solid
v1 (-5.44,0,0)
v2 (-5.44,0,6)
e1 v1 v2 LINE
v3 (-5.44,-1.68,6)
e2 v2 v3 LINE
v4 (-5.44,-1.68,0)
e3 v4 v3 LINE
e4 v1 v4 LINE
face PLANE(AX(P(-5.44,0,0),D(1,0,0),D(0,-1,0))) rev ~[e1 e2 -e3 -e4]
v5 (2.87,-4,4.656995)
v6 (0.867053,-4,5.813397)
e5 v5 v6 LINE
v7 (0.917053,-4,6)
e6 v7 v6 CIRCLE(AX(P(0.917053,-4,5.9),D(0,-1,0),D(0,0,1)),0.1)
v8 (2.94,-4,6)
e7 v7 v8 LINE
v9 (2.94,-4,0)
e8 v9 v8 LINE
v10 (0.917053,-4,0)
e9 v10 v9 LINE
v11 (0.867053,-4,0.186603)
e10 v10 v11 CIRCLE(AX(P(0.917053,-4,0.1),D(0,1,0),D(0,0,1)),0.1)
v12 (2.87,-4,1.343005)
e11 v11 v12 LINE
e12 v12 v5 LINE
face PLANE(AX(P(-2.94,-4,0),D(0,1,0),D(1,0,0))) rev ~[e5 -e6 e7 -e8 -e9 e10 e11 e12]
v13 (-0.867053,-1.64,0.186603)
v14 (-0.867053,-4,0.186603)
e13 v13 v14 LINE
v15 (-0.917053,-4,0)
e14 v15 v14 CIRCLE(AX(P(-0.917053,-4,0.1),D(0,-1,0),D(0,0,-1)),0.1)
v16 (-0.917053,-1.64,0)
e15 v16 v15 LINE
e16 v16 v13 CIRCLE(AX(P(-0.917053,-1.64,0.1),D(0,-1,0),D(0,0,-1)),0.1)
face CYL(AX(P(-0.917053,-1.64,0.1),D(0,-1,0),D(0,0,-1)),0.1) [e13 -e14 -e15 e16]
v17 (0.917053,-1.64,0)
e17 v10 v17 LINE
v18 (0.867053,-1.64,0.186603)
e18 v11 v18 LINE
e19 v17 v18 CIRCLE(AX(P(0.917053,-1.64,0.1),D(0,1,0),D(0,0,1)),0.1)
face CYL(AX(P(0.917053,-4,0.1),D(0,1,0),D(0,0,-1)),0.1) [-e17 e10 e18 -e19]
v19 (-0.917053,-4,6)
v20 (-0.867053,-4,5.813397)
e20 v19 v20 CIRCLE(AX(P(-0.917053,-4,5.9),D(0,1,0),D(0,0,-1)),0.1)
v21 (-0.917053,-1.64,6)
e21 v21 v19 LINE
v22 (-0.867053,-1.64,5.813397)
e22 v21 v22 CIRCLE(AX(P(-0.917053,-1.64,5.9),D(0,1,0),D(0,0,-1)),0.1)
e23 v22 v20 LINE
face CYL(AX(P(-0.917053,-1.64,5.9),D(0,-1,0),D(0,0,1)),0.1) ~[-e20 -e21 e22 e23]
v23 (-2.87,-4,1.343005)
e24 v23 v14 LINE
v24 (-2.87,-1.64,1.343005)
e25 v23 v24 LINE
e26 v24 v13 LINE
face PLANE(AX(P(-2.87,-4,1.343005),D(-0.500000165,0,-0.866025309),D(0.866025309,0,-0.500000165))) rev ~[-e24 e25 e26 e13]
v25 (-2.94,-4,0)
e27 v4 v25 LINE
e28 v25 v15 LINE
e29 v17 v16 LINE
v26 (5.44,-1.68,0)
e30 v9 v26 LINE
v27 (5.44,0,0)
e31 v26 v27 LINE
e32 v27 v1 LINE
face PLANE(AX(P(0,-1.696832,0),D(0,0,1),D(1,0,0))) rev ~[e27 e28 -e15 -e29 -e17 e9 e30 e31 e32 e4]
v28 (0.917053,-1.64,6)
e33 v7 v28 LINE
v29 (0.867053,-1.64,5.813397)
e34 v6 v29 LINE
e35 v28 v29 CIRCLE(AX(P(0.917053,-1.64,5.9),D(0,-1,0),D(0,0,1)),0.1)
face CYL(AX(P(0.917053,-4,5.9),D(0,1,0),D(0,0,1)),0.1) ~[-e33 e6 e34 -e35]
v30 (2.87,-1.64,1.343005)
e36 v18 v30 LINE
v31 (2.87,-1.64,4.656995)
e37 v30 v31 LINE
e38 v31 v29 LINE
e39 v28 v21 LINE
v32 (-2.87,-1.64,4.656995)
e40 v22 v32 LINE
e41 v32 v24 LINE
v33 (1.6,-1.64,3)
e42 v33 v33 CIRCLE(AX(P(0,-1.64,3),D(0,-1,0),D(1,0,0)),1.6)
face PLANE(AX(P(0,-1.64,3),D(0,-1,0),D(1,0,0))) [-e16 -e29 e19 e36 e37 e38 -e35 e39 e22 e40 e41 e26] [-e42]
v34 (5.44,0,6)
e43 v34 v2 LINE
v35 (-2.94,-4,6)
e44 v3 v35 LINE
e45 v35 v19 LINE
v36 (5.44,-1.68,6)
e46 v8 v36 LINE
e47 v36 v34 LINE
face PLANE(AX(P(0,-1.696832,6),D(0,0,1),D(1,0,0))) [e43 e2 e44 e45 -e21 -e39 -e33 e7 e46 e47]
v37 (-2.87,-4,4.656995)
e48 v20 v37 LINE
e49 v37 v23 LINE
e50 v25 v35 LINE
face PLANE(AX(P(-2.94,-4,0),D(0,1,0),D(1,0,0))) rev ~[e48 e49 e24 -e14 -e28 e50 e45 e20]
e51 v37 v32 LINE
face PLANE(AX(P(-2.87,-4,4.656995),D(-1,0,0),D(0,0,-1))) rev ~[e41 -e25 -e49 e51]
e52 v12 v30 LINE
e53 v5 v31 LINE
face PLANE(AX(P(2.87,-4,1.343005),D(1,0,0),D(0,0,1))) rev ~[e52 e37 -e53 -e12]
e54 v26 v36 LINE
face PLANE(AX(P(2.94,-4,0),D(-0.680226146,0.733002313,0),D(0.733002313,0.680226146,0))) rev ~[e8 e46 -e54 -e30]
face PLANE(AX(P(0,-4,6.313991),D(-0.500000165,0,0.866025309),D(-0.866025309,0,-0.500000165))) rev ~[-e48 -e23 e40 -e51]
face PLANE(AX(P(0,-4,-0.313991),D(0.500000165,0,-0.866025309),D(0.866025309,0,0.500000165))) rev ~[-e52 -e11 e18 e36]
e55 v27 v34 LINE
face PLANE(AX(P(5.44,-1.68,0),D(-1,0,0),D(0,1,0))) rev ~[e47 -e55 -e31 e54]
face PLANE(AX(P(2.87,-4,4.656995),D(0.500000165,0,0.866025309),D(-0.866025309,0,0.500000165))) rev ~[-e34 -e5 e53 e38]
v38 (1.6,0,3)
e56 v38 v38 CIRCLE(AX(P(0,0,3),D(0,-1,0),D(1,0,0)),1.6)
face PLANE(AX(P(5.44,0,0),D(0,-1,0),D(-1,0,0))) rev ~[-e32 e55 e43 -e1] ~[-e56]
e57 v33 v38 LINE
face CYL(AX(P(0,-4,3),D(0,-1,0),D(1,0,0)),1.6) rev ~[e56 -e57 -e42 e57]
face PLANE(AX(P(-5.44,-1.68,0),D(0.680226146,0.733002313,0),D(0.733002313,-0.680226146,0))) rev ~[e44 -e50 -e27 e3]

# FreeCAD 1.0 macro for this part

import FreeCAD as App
import Part
import Sketcher

V = App.Vector
Q = App.Units.Quantity


def edges_at(feature, points):
    """Names of the edges that pass closest to the given points."""
    edges = feature.Shape.Edges
    near = lambda p: min(range(len(edges)), key=lambda i: edges[i].distToShape(Part.Vertex(*p))[0])
    return sorted({f"Edge{near(p) + 1}" for p in points})


def add_polygon(sketch, points):
    """Adds a closed chain of lines whose ends are joined by coincident constraints."""
    first, n = sketch.GeometryCount, len(points)
    for a, b in zip(points, points[1:] + points[:1]):
        sketch.addGeometry(Part.LineSegment(App.Vector(*a, 0), App.Vector(*b, 0)), False)
    for i in range(n):
        sketch.addConstraint(Sketcher.Constraint("Coincident", first + i, 2, first + (i + 1) % n, 1))

doc = App.newDocument("Part")
body = doc.addObject("PartDesign::Body", "Body")

# Sketch on XY plane
sketch1 = body.newObject("Sketcher::SketchObject", "Sketch")
sketch1.AttachmentSupport = (doc.getObject("XY_Plane"), [""])
sketch1.MapMode = "FlatFace"
add_polygon(sketch1, [(-5.4, 0), (-5.4, -1.7), (-2.9, -4), (2.9, -4), (5.4, -1.7), (5.4, 0)])  # lines 0-5
sketch1.addConstraint([
    Sketcher.Constraint("Vertical", 0),
    Sketcher.Constraint("Horizontal", 2),
    Sketcher.Constraint("Vertical", 4),
    Sketcher.Constraint("Horizontal", 5),
    Sketcher.Constraint("Symmetric", 4, 2, 5, 2, -1, 1),
    Sketcher.Constraint("Horizontal", 0, 2, 3, 2),
    Sketcher.Constraint("Equal", 1, 3),
    Sketcher.Constraint("DistanceY", 1, 2, -1, 1, Q("4 mm")),
    Sketcher.Constraint("DistanceX", 2, 1, 2, 2, Q("5.88 mm")),
    Sketcher.Constraint("DistanceX", 5, 2, 5, 1, Q("10.88 mm")),
    Sketcher.Constraint("DistanceY", 0, 2, 0, 1, Q("1.68 mm")),
])
pad1 = body.newObject("PartDesign::Pad", "Pad")
pad1.Profile = sketch1
pad1.Length = 6

# Sketch on XZ plane
sketch2 = body.newObject("Sketcher::SketchObject", "Sketch001")
sketch2.AttachmentSupport = (doc.getObject("XZ_Plane"), [""])
sketch2.MapMode = "FlatFace"
sketch2.AttachmentOffset = App.Placement(V(0, 0, 4), App.Rotation())
sketch2.addGeometry(Part.Circle(V(0, 3, 0), V(0, 0, 1), 1.6), False)
sketch2.addConstraint([
    Sketcher.Constraint("PointOnObject", 0, 3, -2),
    Sketcher.Constraint("Diameter", 0, Q("3.2 mm")),
    Sketcher.Constraint("DistanceY", -1, 1, 0, 3, Q("3 mm")),
])
pocket1 = body.newObject("PartDesign::Pocket", "Pocket")
pocket1.Profile = sketch2
pocket1.Type = "ThroughAll"

# Sketch on XZ plane
sketch3 = body.newObject("Sketcher::SketchObject", "Sketch002")
sketch3.AttachmentSupport = (doc.getObject("XZ_Plane"), [""])
sketch3.MapMode = "FlatFace"
sketch3.AttachmentOffset = App.Placement(V(0, 0, 4), App.Rotation())
add_polygon(sketch3, [(-2.9, 4.7), (-2.9, 1.3), (0, -0.3), (2.9, 1.3), (2.9, 4.7), (0, 6.3)])  # lines 0-5
sketch3.addConstraint([
    Sketcher.Constraint("Vertical", 0),
    Sketcher.Constraint("Vertical", 3),
    Sketcher.Constraint("Symmetric", 0, 2, 2, 2, -2),
    Sketcher.Constraint("PointOnObject", 1, 2, -2),
    Sketcher.Constraint("PointOnObject", 4, 2, -2),
    Sketcher.Constraint("Parallel", 1, 4),
    Sketcher.Constraint("Parallel", 2, 5),
    Sketcher.Constraint("Angle", 1, Q("-30.000011 deg")),
    Sketcher.Constraint("DistanceX", 0, 2, -1, 1, Q("2.87 mm")),
    Sketcher.Constraint("DistanceY", 0, 2, 0, 1, Q("3.31399 mm")),
    Sketcher.Constraint("DistanceY", 1, 2, -1, 1, Q("0.313991 mm")),
])
pocket2 = body.newObject("PartDesign::Pocket", "Pocket001")
pocket2.Profile = sketch3
pocket2.Length = 2.36
doc.recompute()

fillet = body.newObject("PartDesign::Fillet", "Fillet")
fillet.Base = (pocket2, edges_at(pocket2, [
    (-0.544, -2.82, 6),
    (0.544, -2.82, 6),
    (0.544, -2.82, 0),
    (-0.544, -2.82, 0),
]))
fillet.Radius = 0.1

doc.recompute()
